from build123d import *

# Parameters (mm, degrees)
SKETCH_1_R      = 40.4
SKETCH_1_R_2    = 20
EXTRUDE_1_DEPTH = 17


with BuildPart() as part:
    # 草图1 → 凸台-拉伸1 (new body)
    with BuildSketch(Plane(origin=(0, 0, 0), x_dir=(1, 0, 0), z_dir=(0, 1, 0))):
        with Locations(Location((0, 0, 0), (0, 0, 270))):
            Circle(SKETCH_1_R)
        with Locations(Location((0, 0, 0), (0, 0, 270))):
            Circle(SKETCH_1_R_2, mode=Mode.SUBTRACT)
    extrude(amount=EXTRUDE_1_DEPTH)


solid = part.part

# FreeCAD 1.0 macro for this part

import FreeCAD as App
import Part
import Sketcher

doc = App.newDocument("Part")
body = doc.addObject("PartDesign::Body", "Body")

# Sketch on XZ plane
sketch1 = body.newObject("Sketcher::SketchObject", "Sketch")
sketch1.AttachmentSupport = (doc.getObject("XZ_Plane"), [""])
sketch1.MapMode = "FlatFace"
sketch1.addGeometry([
    Part.Circle(App.Vector(0, 0, 0), App.Vector(0, 0, 1), 40),
    Part.Circle(App.Vector(0, 0, 0), App.Vector(0, 0, 1), 20),
], False)
sketch1.addConstraint([
    Sketcher.Constraint("Coincident", 0, 3, -1, 1),
    Sketcher.Constraint("Coincident", 1, 3, -1, 1),
    Sketcher.Constraint("Diameter", 1, 40.0),
    Sketcher.Constraint("Diameter", 0, 80.8),
])
pad1 = body.newObject("PartDesign::Pad", "Pad")
pad1.Profile = sketch1
pad1.Length = 17
pad1.Reversed = True

doc.recompute()
